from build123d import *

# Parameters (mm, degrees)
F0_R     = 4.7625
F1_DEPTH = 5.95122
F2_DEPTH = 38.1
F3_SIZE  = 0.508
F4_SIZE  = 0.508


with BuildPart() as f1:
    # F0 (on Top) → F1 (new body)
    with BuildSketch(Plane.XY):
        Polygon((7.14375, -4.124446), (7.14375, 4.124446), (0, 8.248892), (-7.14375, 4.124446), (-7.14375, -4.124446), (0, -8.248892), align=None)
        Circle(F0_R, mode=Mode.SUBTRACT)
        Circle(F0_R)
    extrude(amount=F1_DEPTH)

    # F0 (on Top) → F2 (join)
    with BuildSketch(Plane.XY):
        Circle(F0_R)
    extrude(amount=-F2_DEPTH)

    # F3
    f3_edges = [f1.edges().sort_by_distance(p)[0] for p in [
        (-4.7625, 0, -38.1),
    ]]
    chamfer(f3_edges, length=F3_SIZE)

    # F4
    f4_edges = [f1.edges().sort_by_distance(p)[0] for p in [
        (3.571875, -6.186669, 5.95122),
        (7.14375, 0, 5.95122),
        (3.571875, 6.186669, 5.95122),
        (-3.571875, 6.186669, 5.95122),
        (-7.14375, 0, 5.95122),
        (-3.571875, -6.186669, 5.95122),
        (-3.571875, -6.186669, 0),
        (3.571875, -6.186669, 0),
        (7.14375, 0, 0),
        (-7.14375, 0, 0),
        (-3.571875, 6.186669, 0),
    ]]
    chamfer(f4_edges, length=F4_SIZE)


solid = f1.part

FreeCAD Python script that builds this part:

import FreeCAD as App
import Part
import Sketcher

V = App.Vector
Q = App.Units.Quantity


def edges_at(feature, points):
    """Names of the edges that pass closest to the given points."""
    edges = feature.Shape.Edges
    near = lambda p: min(range(len(edges)), key=lambda i: edges[i].distToShape(Part.Vertex(*p))[0])
    return sorted({f"Edge{near(p) + 1}" for p in points})


def add_polygon(sketch, points):
    """Adds a closed chain of lines whose ends are joined by coincident constraints."""
    first, n = sketch.GeometryCount, len(points)
    for a, b in zip(points, points[1:] + points[:1]):
        sketch.addGeometry(Part.LineSegment(App.Vector(*a, 0), App.Vector(*b, 0)), False)
    for i in range(n):
        sketch.addConstraint(Sketcher.Constraint("Coincident", first + i, 2, first + (i + 1) % n, 1))

doc = App.newDocument("Part")
body = doc.addObject("PartDesign::Body", "Body")

sketch1 = doc.addObject("Sketcher::SketchObject", "Sketch")
body.addObject(sketch1)
sketch1.AttachmentSupport = (doc.XY_Plane, [""])
sketch1.MapMode = "FlatFace"
add_polygon(sketch1, [(7.14375, -4.124446), (7.14375, 4.124446), (0, 8.248892), (-7.14375, 4.124446), (-7.14375, -4.124446), (0, -8.248892)])
sketch1.addConstraint(Sketcher.Constraint("Vertical", 0))
sketch1.addConstraint(Sketcher.Constraint("Vertical", 3))
sketch1.addConstraint(Sketcher.Constraint("Symmetric", 0, 2, 3, 2, -1, 1))
sketch1.addConstraint(Sketcher.Constraint("Symmetric", 1, 2, 4, 2, -1, 1))
sketch1.addConstraint(Sketcher.Constraint("PointOnObject", 1, 2, -2))
sketch1.addConstraint(Sketcher.Constraint("Parallel", 2, 5))
sketch1.addConstraint(Sketcher.Constraint("Horizontal", 0, 2, 2, 2))
sketch1.addConstraint(Sketcher.Constraint("Angle", 1, Q("150 deg")))
sketch1.addConstraint(Sketcher.Constraint("DistanceX", -1, 1, 0, 2, Q("0.28125 in")))
sketch1.addConstraint(Sketcher.Constraint("DistanceY", 0, 1, 0, 2, Q("8.248892 mm")))
pad1 = doc.addObject("PartDesign::Pad", "Pad")
body.addObject(pad1)
pad1.Profile = sketch1
pad1.Length = Q("0.2343 in")

sketch2 = doc.addObject("Sketcher::SketchObject", "Sketch001")
body.addObject(sketch2)
sketch2.AttachmentSupport = (doc.XY_Plane, [""])
sketch2.MapMode = "FlatFace"
sketch2.addGeometry(Part.Circle(V(0, 0, 0), V(0, 0, 1), 4.7625), False)
sketch2.addConstraint(Sketcher.Constraint("Coincident", 0, 3, -1, 1))
sketch2.addConstraint(Sketcher.Constraint("Diameter", 0, Q("0.375 in")))
pad2 = doc.addObject("PartDesign::Pad", "Pad001")
body.addObject(pad2)
pad2.Profile = sketch2
pad2.Length = Q("1.5 in")
pad2.Reversed = True
doc.recompute()

chamfer = doc.addObject("PartDesign::Chamfer", "Chamfer")
body.addObject(chamfer)
chamfer.Base = (pad2, edges_at(pad2, [(-4.763, 0, -38.1)]))
chamfer.Size = Q("0.02 in")
doc.recompute()

chamfer2 = doc.addObject("PartDesign::Chamfer", "Chamfer001")
body.addObject(chamfer2)
chamfer2.Base = (chamfer, edges_at(chamfer, [
    (3.572, -6.187, 5.951),
    (7.144, 0, 5.951),
    (3.572, 6.187, 5.951),
    (-3.572, 6.187, 5.951),
    (-7.144, 0, 5.951),
    (-3.572, -6.187, 5.951),
    (-3.572, -6.187, 0),
    (3.572, -6.187, 0),
    (7.144, 0, 0),
    (-7.144, 0, 0),
    (-3.572, 6.187, 0),
]))
chamfer2.Size = Q("0.02 in")

doc.recompute()
